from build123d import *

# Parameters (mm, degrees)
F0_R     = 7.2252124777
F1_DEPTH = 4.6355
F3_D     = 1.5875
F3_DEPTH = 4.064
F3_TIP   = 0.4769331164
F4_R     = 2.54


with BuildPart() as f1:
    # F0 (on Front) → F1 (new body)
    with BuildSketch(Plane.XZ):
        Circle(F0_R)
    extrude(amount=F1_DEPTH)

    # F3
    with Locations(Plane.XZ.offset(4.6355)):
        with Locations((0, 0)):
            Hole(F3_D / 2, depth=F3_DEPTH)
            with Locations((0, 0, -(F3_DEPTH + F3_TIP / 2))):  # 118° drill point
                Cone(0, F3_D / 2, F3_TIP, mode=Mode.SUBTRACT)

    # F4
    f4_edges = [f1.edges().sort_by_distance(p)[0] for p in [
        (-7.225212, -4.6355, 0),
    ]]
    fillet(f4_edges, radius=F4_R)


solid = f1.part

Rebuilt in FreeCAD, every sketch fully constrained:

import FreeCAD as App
import Part
import Sketcher
from FreeCAD import Vector
Q = App.Units.Quantity


def edges_at(feature, points):
    """Names of the edges that pass closest to the given points."""
    edges = feature.Shape.Edges
    near = lambda p: min(range(len(edges)), key=lambda i: edges[i].distToShape(Part.Vertex(*p))[0])
    return sorted({f"Edge{near(p) + 1}" for p in points})

doc = App.newDocument("Part")
body = doc.addObject("PartDesign::Body", "Body")

sketch1 = doc.addObject("Sketcher::SketchObject", "Sketch")
body.addObject(sketch1)
sketch1.AttachmentSupport = (doc.XZ_Plane, [""])
sketch1.MapMode = "FlatFace"
sketch1.addGeometry(Part.Circle(Vector(0, 0, 0), Vector(0, 0, 1), 7), False)
sketch1.addConstraint(Sketcher.Constraint("Coincident", 0, 3, -1, 1))
sketch1.addConstraint(Sketcher.Constraint("Diameter", 0, 14.450425))
pad1 = doc.addObject("PartDesign::Pad", "Pad")
body.addObject(pad1)
pad1.Profile = sketch1
pad1.Length = Q("0.1825 in")

sketch2 = doc.addObject("Sketcher::SketchObject", "Sketch001")
body.addObject(sketch2)
sketch2.AttachmentSupport = (doc.XZ_Plane, [""])
sketch2.MapMode = "FlatFace"
sketch2.AttachmentOffset = App.Placement(Vector(0, 0, 0.1825 * 25.4), App.Rotation())
sketch2.addGeometry(Part.Circle(Vector(0, 0, 0), Vector(0, 0, 1), 0.8), False)
sketch2.addConstraint(Sketcher.Constraint("Coincident", 0, 3, -1, 1))
sketch2.addConstraint(Sketcher.Constraint("Diameter", 0, Q("0.0625 in")))
doc.recompute()
hole = doc.addObject("PartDesign::Hole", "Hole")
body.addObject(hole)
hole.Profile = sketch2
hole.ThreadType = "None"
hole.Diameter = Q("0.0625 in")
hole.DepthType = "Dimension"
hole.Depth = Q("0.16 in")
hole.DrillPoint = "Angled"
hole.DrillPointAngle = 118
doc.recompute()

fillet = doc.addObject("PartDesign::Fillet", "Fillet")
body.addObject(fillet)
fillet.Base = (hole, edges_at(hole, [(-7.225, -4.636, 0)]))
fillet.Radius = Q("0.1 in")

doc.recompute()
